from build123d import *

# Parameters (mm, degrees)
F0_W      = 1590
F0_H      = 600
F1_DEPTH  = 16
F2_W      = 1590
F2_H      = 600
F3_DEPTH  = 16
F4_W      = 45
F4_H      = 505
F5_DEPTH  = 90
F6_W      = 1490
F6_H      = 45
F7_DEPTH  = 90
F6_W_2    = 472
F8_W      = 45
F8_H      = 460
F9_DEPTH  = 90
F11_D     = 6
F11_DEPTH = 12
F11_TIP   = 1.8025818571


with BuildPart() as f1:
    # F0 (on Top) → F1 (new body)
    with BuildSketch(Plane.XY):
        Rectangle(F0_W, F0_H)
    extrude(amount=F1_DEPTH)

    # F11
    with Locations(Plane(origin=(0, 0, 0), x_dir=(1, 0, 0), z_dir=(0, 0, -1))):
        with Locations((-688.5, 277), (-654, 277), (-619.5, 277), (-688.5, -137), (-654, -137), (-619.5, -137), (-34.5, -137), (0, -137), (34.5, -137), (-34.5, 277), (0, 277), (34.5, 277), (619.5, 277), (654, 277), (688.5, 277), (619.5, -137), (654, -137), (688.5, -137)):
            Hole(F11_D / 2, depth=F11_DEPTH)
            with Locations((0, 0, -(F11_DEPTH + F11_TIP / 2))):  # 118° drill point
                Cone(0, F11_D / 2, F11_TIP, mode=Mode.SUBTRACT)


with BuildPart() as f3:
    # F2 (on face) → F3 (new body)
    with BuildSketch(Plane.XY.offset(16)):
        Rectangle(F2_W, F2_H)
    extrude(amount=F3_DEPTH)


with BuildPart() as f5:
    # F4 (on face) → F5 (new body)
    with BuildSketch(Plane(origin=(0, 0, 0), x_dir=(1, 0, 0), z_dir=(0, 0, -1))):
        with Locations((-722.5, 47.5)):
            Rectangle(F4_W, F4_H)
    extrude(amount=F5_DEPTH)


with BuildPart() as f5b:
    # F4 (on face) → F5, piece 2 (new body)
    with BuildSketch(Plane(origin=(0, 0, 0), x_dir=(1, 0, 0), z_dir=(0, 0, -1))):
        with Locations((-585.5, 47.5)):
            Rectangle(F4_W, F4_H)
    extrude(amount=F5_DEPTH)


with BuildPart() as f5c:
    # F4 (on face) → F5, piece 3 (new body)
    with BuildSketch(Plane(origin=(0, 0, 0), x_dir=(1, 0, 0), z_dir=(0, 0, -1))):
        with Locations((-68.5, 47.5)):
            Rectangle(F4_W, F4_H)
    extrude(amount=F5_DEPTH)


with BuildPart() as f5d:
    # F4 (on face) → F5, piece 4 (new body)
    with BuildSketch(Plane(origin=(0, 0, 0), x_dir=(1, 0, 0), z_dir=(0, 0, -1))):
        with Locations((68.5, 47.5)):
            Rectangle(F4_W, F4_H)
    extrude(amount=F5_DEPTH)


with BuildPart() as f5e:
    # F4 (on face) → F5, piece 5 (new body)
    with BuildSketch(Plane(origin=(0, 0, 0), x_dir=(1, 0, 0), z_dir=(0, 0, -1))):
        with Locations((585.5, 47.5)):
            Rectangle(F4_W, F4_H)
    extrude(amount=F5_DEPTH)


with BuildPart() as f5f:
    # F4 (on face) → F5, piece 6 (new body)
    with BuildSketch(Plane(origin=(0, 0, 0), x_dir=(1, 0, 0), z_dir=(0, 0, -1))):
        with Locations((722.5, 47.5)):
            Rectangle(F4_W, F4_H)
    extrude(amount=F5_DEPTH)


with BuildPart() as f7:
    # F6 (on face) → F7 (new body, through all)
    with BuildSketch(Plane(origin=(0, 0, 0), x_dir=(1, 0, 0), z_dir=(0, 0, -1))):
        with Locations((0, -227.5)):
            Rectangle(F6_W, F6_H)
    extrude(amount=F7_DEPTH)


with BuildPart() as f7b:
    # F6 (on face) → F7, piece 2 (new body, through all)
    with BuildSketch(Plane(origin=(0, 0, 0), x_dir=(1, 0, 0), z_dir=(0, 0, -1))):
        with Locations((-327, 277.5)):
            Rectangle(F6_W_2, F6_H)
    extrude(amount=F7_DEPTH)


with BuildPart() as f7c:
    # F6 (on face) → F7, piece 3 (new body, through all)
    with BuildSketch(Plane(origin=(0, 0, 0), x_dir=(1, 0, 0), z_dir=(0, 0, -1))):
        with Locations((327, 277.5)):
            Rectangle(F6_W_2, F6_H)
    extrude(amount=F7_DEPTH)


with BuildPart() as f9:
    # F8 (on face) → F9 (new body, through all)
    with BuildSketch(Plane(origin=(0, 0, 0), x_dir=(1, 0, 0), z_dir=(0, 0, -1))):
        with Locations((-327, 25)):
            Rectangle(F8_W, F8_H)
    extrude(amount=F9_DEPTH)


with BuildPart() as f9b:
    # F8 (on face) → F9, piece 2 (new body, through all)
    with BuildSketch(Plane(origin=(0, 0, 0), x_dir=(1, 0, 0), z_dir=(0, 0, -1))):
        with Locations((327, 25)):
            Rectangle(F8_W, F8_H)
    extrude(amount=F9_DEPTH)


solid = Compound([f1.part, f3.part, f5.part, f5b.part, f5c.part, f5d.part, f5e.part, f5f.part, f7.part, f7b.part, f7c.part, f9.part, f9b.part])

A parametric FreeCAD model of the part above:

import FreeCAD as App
import Part
import Sketcher
from FreeCAD import Vector
Q = App.Units.Quantity

doc = App.newDocument("Part")
body = doc.addObject("PartDesign::Body", "Body")

sketch1 = body.newObject("Sketcher::SketchObject", "Sketch")
sketch1.AttachmentSupport = (doc.getObject("XY_Plane"), [""])
sketch1.MapMode = "FlatFace"
sketch1.addGeometry([
    Part.LineSegment(Vector(-795, 300, 0), Vector(-795, -300, 0)),
    Part.LineSegment(Vector(-795, -300, 0), Vector(795, -300, 0)),
    Part.LineSegment(Vector(795, -300, 0), Vector(795, 300, 0)),
    Part.LineSegment(Vector(795, 300, 0), Vector(-795, 300, 0)),
], False)
sketch1.addConstraint([
    Sketcher.Constraint("Coincident", 0, 2, 1, 1),
    Sketcher.Constraint("Coincident", 1, 2, 2, 1),
    Sketcher.Constraint("Coincident", 2, 2, 3, 1),
    Sketcher.Constraint("Coincident", 3, 2, 0, 1),
    Sketcher.Constraint("Vertical", 0),
    Sketcher.Constraint("Horizontal", 1),
    Sketcher.Constraint("Vertical", 2),
    Sketcher.Constraint("Horizontal", 3),
    Sketcher.Constraint("Symmetric", 0, 2, 2, 2, -1, 1),
    Sketcher.Constraint("DistanceX", 1, 1, 1, 2, Q("1590 mm")),
    Sketcher.Constraint("DistanceY", 0, 2, 0, 1, Q("600 mm")),
])
pad1 = body.newObject("PartDesign::Pad", "Pad")
pad1.Profile = sketch1
pad1.Length = 16

sketch2 = body.newObject("Sketcher::SketchObject", "Sketch001")
sketch2.AttachmentSupport = (doc.getObject("XY_Plane"), [""])
sketch2.MapMode = "FlatFace"
sketch2.addGeometry([
    Part.Circle(Vector(-688.5, -277, 0), Vector(0, 0, 1), 3),
    Part.Circle(Vector(-654, -277, 0), Vector(0, 0, 1), 3),
    Part.Circle(Vector(-619.5, -277, 0), Vector(0, 0, 1), 3),
    Part.Circle(Vector(-688.5, 137, 0), Vector(0, 0, 1), 3),
    Part.Circle(Vector(-654, 137, 0), Vector(0, 0, 1), 3),
    Part.Circle(Vector(-619.5, 137, 0), Vector(0, 0, 1), 3),
    Part.Circle(Vector(-34.5, 137, 0), Vector(0, 0, 1), 3),
    Part.Circle(Vector(0, 137, 0), Vector(0, 0, 1), 3),
    Part.Circle(Vector(34.5, 137, 0), Vector(0, 0, 1), 3),
    Part.Circle(Vector(-34.5, -277, 0), Vector(0, 0, 1), 3),
    Part.Circle(Vector(0, -277, 0), Vector(0, 0, 1), 3),
    Part.Circle(Vector(34.5, -277, 0), Vector(0, 0, 1), 3),
    Part.Circle(Vector(619.5, -277, 0), Vector(0, 0, 1), 3),
    Part.Circle(Vector(654, -277, 0), Vector(0, 0, 1), 3),
    Part.Circle(Vector(688.5, -277, 0), Vector(0, 0, 1), 3),
    Part.Circle(Vector(619.5, 137, 0), Vector(0, 0, 1), 3),
    Part.Circle(Vector(654, 137, 0), Vector(0, 0, 1), 3),
    Part.Circle(Vector(688.5, 137, 0), Vector(0, 0, 1), 3),
], False)
sketch2.addConstraint([
    Sketcher.Constraint("Equal", 0, 1),
    Sketcher.Constraint("Equal", 1, 2),
    Sketcher.Constraint("Equal", 2, 3),
    Sketcher.Constraint("Equal", 3, 4),
    Sketcher.Constraint("Equal", 4, 5),
    Sketcher.Constraint("Equal", 5, 6),
    Sketcher.Constraint("Equal", 6, 7),
    Sketcher.Constraint("Equal", 7, 8),
    Sketcher.Constraint("Equal", 8, 9),
    Sketcher.Constraint("Equal", 9, 10),
    Sketcher.Constraint("Equal", 10, 11),
    Sketcher.Constraint("Equal", 11, 12),
    Sketcher.Constraint("Equal", 12, 13),
    Sketcher.Constraint("Equal", 13, 14),
    Sketcher.Constraint("Equal", 14, 15),
    Sketcher.Constraint("Equal", 15, 16),
    Sketcher.Constraint("Equal", 16, 17),
    Sketcher.Constraint("Symmetric", 6, 3, 8, 3, -2),
    Sketcher.Constraint("Symmetric", 9, 3, 11, 3, -2),
    Sketcher.Constraint("Symmetric", 2, 3, 12, 3, -2),
    Sketcher.Constraint("Symmetric", 1, 3, 13, 3, -2),
    Sketcher.Constraint("Symmetric", 0, 3, 14, 3, -2),
    Sketcher.Constraint("Symmetric", 5, 3, 15, 3, -2),
    Sketcher.Constraint("Symmetric", 4, 3, 16, 3, -2),
    Sketcher.Constraint("Symmetric", 3, 3, 17, 3, -2),
    Sketcher.Constraint("PointOnObject", 7, 3, -2),
    Sketcher.Constraint("PointOnObject", 10, 3, -2),
    Sketcher.Constraint("Horizontal", 0, 3, 1, 3),
    Sketcher.Constraint("Horizontal", 1, 3, 2, 3),
    Sketcher.Constraint("Horizontal", 3, 3, 4, 3),
    Sketcher.Constraint("Horizontal", 4, 3, 5, 3),
    Sketcher.Constraint("Horizontal", 5, 3, 6, 3),
    Sketcher.Constraint("Horizontal", 6, 3, 7, 3),
    Sketcher.Constraint("Horizontal", 2, 3, 9, 3),
    Sketcher.Constraint("Horizontal", 9, 3, 10, 3),
    Sketcher.Constraint("Vertical", 0, 3, 3, 3),
    Sketcher.Constraint("Vertical", 1, 3, 4, 3),
    Sketcher.Constraint("Vertical", 2, 3, 5, 3),
    Sketcher.Constraint("Vertical", 6, 3, 9, 3),
    Sketcher.Constraint("Diameter", 0, Q("6 mm")),
    Sketcher.Constraint("DistanceY", 0, 3, -1, 1, Q("277 mm")),
    Sketcher.Constraint("DistanceX", 1, 3, -1, 1, Q("654 mm")),
    Sketcher.Constraint("DistanceY", -1, 1, 3, 3, Q("137 mm")),
    Sketcher.Constraint("DistanceX", 0, 3, 2, 3, Q("69 mm")),
    Sketcher.Constraint("DistanceX", 5, 3, 6, 3, Q("585 mm")),
    Sketcher.Constraint("DistanceX", 6, 3, 8, 3, Q("69 mm")),
])
doc.recompute()
hole = body.newObject("PartDesign::Hole", "Hole")
hole.Profile = sketch2
hole.ThreadType = "None"
hole.Diameter = 6
hole.DepthType = "Dimension"
hole.Depth = 12
hole.DrillPoint = "Angled"
hole.DrillPointAngle = 118
hole.Reversed = True
body2 = doc.addObject("PartDesign::Body", "Body001")

sketch3 = body2.newObject("Sketcher::SketchObject", "Sketch002")
sketch3.AttachmentSupport = (doc.getObject("XY_Plane001"), [""])
sketch3.MapMode = "FlatFace"
sketch3.AttachmentOffset = App.Placement(Vector(0, 0, 16), App.Rotation())
sketch3.addGeometry([
    Part.LineSegment(Vector(-795, 300, 0), Vector(-795, -300, 0)),
    Part.LineSegment(Vector(-795, -300, 0), Vector(795, -300, 0)),
    Part.LineSegment(Vector(795, -300, 0), Vector(795, 300, 0)),
    Part.LineSegment(Vector(795, 300, 0), Vector(-795, 300, 0)),
], False)
sketch3.addConstraint([
    Sketcher.Constraint("Coincident", 0, 2, 1, 1),
    Sketcher.Constraint("Coincident", 1, 2, 2, 1),
    Sketcher.Constraint("Coincident", 2, 2, 3, 1),
    Sketcher.Constraint("Coincident", 3, 2, 0, 1),
    Sketcher.Constraint("Vertical", 0),
    Sketcher.Constraint("Horizontal", 1),
    Sketcher.Constraint("Vertical", 2),
    Sketcher.Constraint("Horizontal", 3),
    Sketcher.Constraint("Symmetric", 0, 2, 2, 2, -1, 1),
    Sketcher.Constraint("DistanceX", 1, 1, 1, 2, Q("1590 mm")),
    Sketcher.Constraint("DistanceY", 0, 2, 0, 1, Q("600 mm")),
])
pad2 = body2.newObject("PartDesign::Pad", "Pad001")
pad2.Profile = sketch3
pad2.Length = 16
body3 = doc.addObject("PartDesign::Body", "Body002")

sketch4 = body3.newObject("Sketcher::SketchObject", "Sketch003")
sketch4.AttachmentSupport = (doc.getObject("XY_Plane002"), [""])
sketch4.MapMode = "FlatFace"
sketch4.addGeometry([
    Part.LineSegment(Vector(-745, -300, 0), Vector(-745, 205, 0)),
    Part.LineSegment(Vector(-745, 205, 0), Vector(-700, 205, 0)),
    Part.LineSegment(Vector(-700, 205, 0), Vector(-700, -300, 0)),
    Part.LineSegment(Vector(-700, -300, 0), Vector(-745, -300, 0)),
], False)
sketch4.addConstraint([
    Sketcher.Constraint("Coincident", 0, 2, 1, 1),
    Sketcher.Constraint("Coincident", 1, 2, 2, 1),
    Sketcher.Constraint("Coincident", 2, 2, 3, 1),
    Sketcher.Constraint("Coincident", 3, 2, 0, 1),
    Sketcher.Constraint("Vertical", 0),
    Sketcher.Constraint("Horizontal", 1),
    Sketcher.Constraint("Vertical", 2),
    Sketcher.Constraint("Horizontal", 3),
    Sketcher.Constraint("DistanceX", 1, 1, 1, 2, Q("45 mm")),
    Sketcher.Constraint("DistanceY", 0, 1, 0, 2, Q("505 mm")),
    Sketcher.Constraint("DistanceX", 0, 2, -1, 1, Q("745 mm")),
    Sketcher.Constraint("DistanceY", -1, 1, 0, 2, Q("205 mm")),
])
pad3 = body3.newObject("PartDesign::Pad", "Pad002")
pad3.Profile = sketch4
pad3.Length = 90
pad3.Reversed = True
body4 = doc.addObject("PartDesign::Body", "Body003")

sketch5 = body4.newObject("Sketcher::SketchObject", "Sketch004")
sketch5.AttachmentSupport = (doc.getObject("XY_Plane003"), [""])
sketch5.MapMode = "FlatFace"
sketch5.addGeometry([
    Part.LineSegment(Vector(-608, -300, 0), Vector(-608, 205, 0)),
    Part.LineSegment(Vector(-608, 205, 0), Vector(-563, 205, 0)),
    Part.LineSegment(Vector(-563, 205, 0), Vector(-563, -300, 0)),
    Part.LineSegment(Vector(-563, -300, 0), Vector(-608, -300, 0)),
], False)
sketch5.addConstraint([
    Sketcher.Constraint("Coincident", 0, 2, 1, 1),
    Sketcher.Constraint("Coincident", 1, 2, 2, 1),
    Sketcher.Constraint("Coincident", 2, 2, 3, 1),
    Sketcher.Constraint("Coincident", 3, 2, 0, 1),
    Sketcher.Constraint("Vertical", 0),
    Sketcher.Constraint("Horizontal", 1),
    Sketcher.Constraint("Vertical", 2),
    Sketcher.Constraint("Horizontal", 3),
    Sketcher.Constraint("DistanceX", 1, 1, 1, 2, Q("45 mm")),
    Sketcher.Constraint("DistanceY", 0, 1, 0, 2, Q("505 mm")),
    Sketcher.Constraint("DistanceX", 0, 2, -1, 1, Q("608 mm")),
    Sketcher.Constraint("DistanceY", -1, 1, 0, 2, Q("205 mm")),
])
pad4 = body4.newObject("PartDesign::Pad", "Pad003")
pad4.Profile = sketch5
pad4.Length = 90
pad4.Reversed = True
body5 = doc.addObject("PartDesign::Body", "Body004")

sketch6 = body5.newObject("Sketcher::SketchObject", "Sketch005")
sketch6.AttachmentSupport = (doc.getObject("XY_Plane004"), [""])
sketch6.MapMode = "FlatFace"
sketch6.addGeometry([
    Part.LineSegment(Vector(-91, -300, 0), Vector(-91, 205, 0)),
    Part.LineSegment(Vector(-91, 205, 0), Vector(-46, 205, 0)),
    Part.LineSegment(Vector(-46, 205, 0), Vector(-46, -300, 0)),
    Part.LineSegment(Vector(-46, -300, 0), Vector(-91, -300, 0)),
], False)
sketch6.addConstraint([
    Sketcher.Constraint("Coincident", 0, 2, 1, 1),
    Sketcher.Constraint("Coincident", 1, 2, 2, 1),
    Sketcher.Constraint("Coincident", 2, 2, 3, 1),
    Sketcher.Constraint("Coincident", 3, 2, 0, 1),
    Sketcher.Constraint("Vertical", 0),
    Sketcher.Constraint("Horizontal", 1),
    Sketcher.Constraint("Vertical", 2),
    Sketcher.Constraint("Horizontal", 3),
    Sketcher.Constraint("DistanceX", 1, 1, 1, 2, Q("45 mm")),
    Sketcher.Constraint("DistanceY", 0, 1, 0, 2, Q("505 mm")),
    Sketcher.Constraint("DistanceX", 0, 2, -1, 1, Q("91 mm")),
    Sketcher.Constraint("DistanceY", -1, 1, 0, 2, Q("205 mm")),
])
pad5 = body5.newObject("PartDesign::Pad", "Pad004")
pad5.Profile = sketch6
pad5.Length = 90
pad5.Reversed = True
body6 = doc.addObject("PartDesign::Body", "Body005")

sketch7 = body6.newObject("Sketcher::SketchObject", "Sketch006")
sketch7.AttachmentSupport = (doc.getObject("XY_Plane005"), [""])
sketch7.MapMode = "FlatFace"
sketch7.addGeometry([
    Part.LineSegment(Vector(46, -300, 0), Vector(46, 205, 0)),
    Part.LineSegment(Vector(46, 205, 0), Vector(91, 205, 0)),
    Part.LineSegment(Vector(91, 205, 0), Vector(91, -300, 0)),
    Part.LineSegment(Vector(91, -300, 0), Vector(46, -300, 0)),
], False)
sketch7.addConstraint([
    Sketcher.Constraint("Coincident", 0, 2, 1, 1),
    Sketcher.Constraint("Coincident", 1, 2, 2, 1),
    Sketcher.Constraint("Coincident", 2, 2, 3, 1),
    Sketcher.Constraint("Coincident", 3, 2, 0, 1),
    Sketcher.Constraint("Vertical", 0),
    Sketcher.Constraint("Horizontal", 1),
    Sketcher.Constraint("Vertical", 2),
    Sketcher.Constraint("Horizontal", 3),
    Sketcher.Constraint("DistanceX", 1, 1, 1, 2, Q("45 mm")),
    Sketcher.Constraint("DistanceY", 0, 1, 0, 2, Q("505 mm")),
    Sketcher.Constraint("DistanceX", -1, 1, 0, 2, Q("46 mm")),
    Sketcher.Constraint("DistanceY", -1, 1, 0, 2, Q("205 mm")),
])
pad6 = body6.newObject("PartDesign::Pad", "Pad005")
pad6.Profile = sketch7
pad6.Length = 90
pad6.Reversed = True
body7 = doc.addObject("PartDesign::Body", "Body006")

sketch8 = body7.newObject("Sketcher::SketchObject", "Sketch007")
sketch8.AttachmentSupport = (doc.getObject("XY_Plane006"), [""])
sketch8.MapMode = "FlatFace"
sketch8.addGeometry([
    Part.LineSegment(Vector(563, -300, 0), Vector(563, 205, 0)),
    Part.LineSegment(Vector(563, 205, 0), Vector(608, 205, 0)),
    Part.LineSegment(Vector(608, 205, 0), Vector(608, -300, 0)),
    Part.LineSegment(Vector(608, -300, 0), Vector(563, -300, 0)),
], False)
sketch8.addConstraint([
    Sketcher.Constraint("Coincident", 0, 2, 1, 1),
    Sketcher.Constraint("Coincident", 1, 2, 2, 1),
    Sketcher.Constraint("Coincident", 2, 2, 3, 1),
    Sketcher.Constraint("Coincident", 3, 2, 0, 1),
    Sketcher.Constraint("Vertical", 0),
    Sketcher.Constraint("Horizontal", 1),
    Sketcher.Constraint("Vertical", 2),
    Sketcher.Constraint("Horizontal", 3),
    Sketcher.Constraint("DistanceX", 1, 1, 1, 2, Q("45 mm")),
    Sketcher.Constraint("DistanceY", 0, 1, 0, 2, Q("505 mm")),
    Sketcher.Constraint("DistanceX", -1, 1, 0, 2, Q("563 mm")),
    Sketcher.Constraint("DistanceY", -1, 1, 0, 2, Q("205 mm")),
])
pad7 = body7.newObject("PartDesign::Pad", "Pad006")
pad7.Profile = sketch8
pad7.Length = 90
pad7.Reversed = True
body8 = doc.addObject("PartDesign::Body", "Body007")

sketch9 = body8.newObject("Sketcher::SketchObject", "Sketch008")
sketch9.AttachmentSupport = (doc.getObject("XY_Plane007"), [""])
sketch9.MapMode = "FlatFace"
sketch9.addGeometry([
    Part.LineSegment(Vector(700, -300, 0), Vector(700, 205, 0)),
    Part.LineSegment(Vector(700, 205, 0), Vector(745, 205, 0)),
    Part.LineSegment(Vector(745, 205, 0), Vector(745, -300, 0)),
    Part.LineSegment(Vector(745, -300, 0), Vector(700, -300, 0)),
], False)
sketch9.addConstraint([
    Sketcher.Constraint("Coincident", 0, 2, 1, 1),
    Sketcher.Constraint("Coincident", 1, 2, 2, 1),
    Sketcher.Constraint("Coincident", 2, 2, 3, 1),
    Sketcher.Constraint("Coincident", 3, 2, 0, 1),
    Sketcher.Constraint("Vertical", 0),
    Sketcher.Constraint("Horizontal", 1),
    Sketcher.Constraint("Vertical", 2),
    Sketcher.Constraint("Horizontal", 3),
    Sketcher.Constraint("DistanceX", 1, 1, 1, 2, Q("45 mm")),
    Sketcher.Constraint("DistanceY", 0, 1, 0, 2, Q("505 mm")),
    Sketcher.Constraint("DistanceX", -1, 1, 0, 2, Q("700 mm")),
    Sketcher.Constraint("DistanceY", -1, 1, 0, 2, Q("205 mm")),
])
pad8 = body8.newObject("PartDesign::Pad", "Pad007")
pad8.Profile = sketch9
pad8.Length = 90
pad8.Reversed = True
body9 = doc.addObject("PartDesign::Body", "Body008")

sketch10 = body9.newObject("Sketcher::SketchObject", "Sketch009")
sketch10.AttachmentSupport = (doc.getObject("XY_Plane008"), [""])
sketch10.MapMode = "FlatFace"
sketch10.addGeometry([
    Part.LineSegment(Vector(-745, 205, 0), Vector(-745, 250, 0)),
    Part.LineSegment(Vector(-745, 250, 0), Vector(745, 250, 0)),
    Part.LineSegment(Vector(745, 250, 0), Vector(745, 205, 0)),
    Part.LineSegment(Vector(745, 205, 0), Vector(-745, 205, 0)),
], False)
sketch10.addConstraint([
    Sketcher.Constraint("Coincident", 0, 2, 1, 1),
    Sketcher.Constraint("Coincident", 1, 2, 2, 1),
    Sketcher.Constraint("Coincident", 2, 2, 3, 1),
    Sketcher.Constraint("Coincident", 3, 2, 0, 1),
    Sketcher.Constraint("Vertical", 0),
    Sketcher.Constraint("Horizontal", 1),
    Sketcher.Constraint("Vertical", 2),
    Sketcher.Constraint("Horizontal", 3),
    Sketcher.Constraint("DistanceX", 1, 1, 1, 2, Q("1490 mm")),
    Sketcher.Constraint("DistanceY", 0, 1, 0, 2, Q("45 mm")),
    Sketcher.Constraint("DistanceX", 0, 2, -1, 1, Q("745 mm")),
    Sketcher.Constraint("DistanceY", -1, 1, 0, 2, Q("250 mm")),
])
pad9 = body9.newObject("PartDesign::Pad", "Pad008")
pad9.Profile = sketch10
pad9.Length = 90
pad9.Reversed = True
body10 = doc.addObject("PartDesign::Body", "Body009")

sketch11 = body10.newObject("Sketcher::SketchObject", "Sketch010")
sketch11.AttachmentSupport = (doc.getObject("XY_Plane009"), [""])
sketch11.MapMode = "FlatFace"
sketch11.addGeometry([
    Part.LineSegment(Vector(-563, -300, 0), Vector(-563, -255, 0)),
    Part.LineSegment(Vector(-563, -255, 0), Vector(-91, -255, 0)),
    Part.LineSegment(Vector(-91, -255, 0), Vector(-91, -300, 0)),
    Part.LineSegment(Vector(-91, -300, 0), Vector(-563, -300, 0)),
], False)
sketch11.addConstraint([
    Sketcher.Constraint("Coincident", 0, 2, 1, 1),
    Sketcher.Constraint("Coincident", 1, 2, 2, 1),
    Sketcher.Constraint("Coincident", 2, 2, 3, 1),
    Sketcher.Constraint("Coincident", 3, 2, 0, 1),
    Sketcher.Constraint("Vertical", 0),
    Sketcher.Constraint("Horizontal", 1),
    Sketcher.Constraint("Vertical", 2),
    Sketcher.Constraint("Horizontal", 3),
    Sketcher.Constraint("DistanceX", 1, 1, 1, 2, Q("472 mm")),
    Sketcher.Constraint("DistanceY", 0, 1, 0, 2, Q("45 mm")),
    Sketcher.Constraint("DistanceX", 0, 2, -1, 1, Q("563 mm")),
    Sketcher.Constraint("DistanceY", 0, 2, -1, 1, Q("255 mm")),
])
pad10 = body10.newObject("PartDesign::Pad", "Pad009")
pad10.Profile = sketch11
pad10.Length = 90
pad10.Reversed = True
body11 = doc.addObject("PartDesign::Body", "Body010")

sketch12 = body11.newObject("Sketcher::SketchObject", "Sketch011")
sketch12.AttachmentSupport = (doc.getObject("XY_Plane010"), [""])
sketch12.MapMode = "FlatFace"
sketch12.addGeometry([
    Part.LineSegment(Vector(91, -300, 0), Vector(91, -255, 0)),
    Part.LineSegment(Vector(91, -255, 0), Vector(563, -255, 0)),
    Part.LineSegment(Vector(563, -255, 0), Vector(563, -300, 0)),
    Part.LineSegment(Vector(563, -300, 0), Vector(91, -300, 0)),
], False)
sketch12.addConstraint([
    Sketcher.Constraint("Coincident", 0, 2, 1, 1),
    Sketcher.Constraint("Coincident", 1, 2, 2, 1),
    Sketcher.Constraint("Coincident", 2, 2, 3, 1),
    Sketcher.Constraint("Coincident", 3, 2, 0, 1),
    Sketcher.Constraint("Vertical", 0),
    Sketcher.Constraint("Horizontal", 1),
    Sketcher.Constraint("Vertical", 2),
    Sketcher.Constraint("Horizontal", 3),
    Sketcher.Constraint("DistanceX", 1, 1, 1, 2, Q("472 mm")),
    Sketcher.Constraint("DistanceY", 0, 1, 0, 2, Q("45 mm")),
    Sketcher.Constraint("DistanceX", -1, 1, 0, 2, Q("91 mm")),
    Sketcher.Constraint("DistanceY", 0, 2, -1, 1, Q("255 mm")),
])
pad11 = body11.newObject("PartDesign::Pad", "Pad010")
pad11.Profile = sketch12
pad11.Length = 90
pad11.Reversed = True
body12 = doc.addObject("PartDesign::Body", "Body011")

sketch13 = body12.newObject("Sketcher::SketchObject", "Sketch012")
sketch13.AttachmentSupport = (doc.getObject("XY_Plane011"), [""])
sketch13.MapMode = "FlatFace"
sketch13.addGeometry([
    Part.LineSegment(Vector(-349.5, -255, 0), Vector(-349.5, 205, 0)),
    Part.LineSegment(Vector(-349.5, 205, 0), Vector(-304.5, 205, 0)),
    Part.LineSegment(Vector(-304.5, 205, 0), Vector(-304.5, -255, 0)),
    Part.LineSegment(Vector(-304.5, -255, 0), Vector(-349.5, -255, 0)),
], False)
sketch13.addConstraint([
    Sketcher.Constraint("Coincident", 0, 2, 1, 1),
    Sketcher.Constraint("Coincident", 1, 2, 2, 1),
    Sketcher.Constraint("Coincident", 2, 2, 3, 1),
    Sketcher.Constraint("Coincident", 3, 2, 0, 1),
    Sketcher.Constraint("Vertical", 0),
    Sketcher.Constraint("Horizontal", 1),
    Sketcher.Constraint("Vertical", 2),
    Sketcher.Constraint("Horizontal", 3),
    Sketcher.Constraint("DistanceX", 1, 1, 1, 2, Q("45 mm")),
    Sketcher.Constraint("DistanceY", 0, 1, 0, 2, Q("460 mm")),
    Sketcher.Constraint("DistanceY", -1, 1, 0, 2, Q("205 mm")),
    Sketcher.Constraint("DistanceX", 0, 2, -1, 1, Q("349.5 mm")),
])
pad12 = body12.newObject("PartDesign::Pad", "Pad011")
pad12.Profile = sketch13
pad12.Length = 90
pad12.Reversed = True
body13 = doc.addObject("PartDesign::Body", "Body012")

sketch14 = body13.newObject("Sketcher::SketchObject", "Sketch013")
sketch14.AttachmentSupport = (doc.getObject("XY_Plane012"), [""])
sketch14.MapMode = "FlatFace"
sketch14.addGeometry([
    Part.LineSegment(Vector(304.5, -255, 0), Vector(304.5, 205, 0)),
    Part.LineSegment(Vector(304.5, 205, 0), Vector(349.5, 205, 0)),
    Part.LineSegment(Vector(349.5, 205, 0), Vector(349.5, -255, 0)),
    Part.LineSegment(Vector(349.5, -255, 0), Vector(304.5, -255, 0)),
], False)
sketch14.addConstraint([
    Sketcher.Constraint("Coincident", 0, 2, 1, 1),
    Sketcher.Constraint("Coincident", 1, 2, 2, 1),
    Sketcher.Constraint("Coincident", 2, 2, 3, 1),
    Sketcher.Constraint("Coincident", 3, 2, 0, 1),
    Sketcher.Constraint("Vertical", 0),
    Sketcher.Constraint("Horizontal", 1),
    Sketcher.Constraint("Vertical", 2),
    Sketcher.Constraint("Horizontal", 3),
    Sketcher.Constraint("DistanceX", 1, 1, 1, 2, Q("45 mm")),
    Sketcher.Constraint("DistanceY", 0, 1, 0, 2, Q("460 mm")),
    Sketcher.Constraint("DistanceY", -1, 1, 0, 2, Q("205 mm")),
    Sketcher.Constraint("DistanceX", -1, 1, 0, 2, Q("304.5 mm")),
])
pad13 = body13.newObject("PartDesign::Pad", "Pad012")
pad13.Profile = sketch14
pad13.Length = 90
pad13.Reversed = True

doc.recompute()
